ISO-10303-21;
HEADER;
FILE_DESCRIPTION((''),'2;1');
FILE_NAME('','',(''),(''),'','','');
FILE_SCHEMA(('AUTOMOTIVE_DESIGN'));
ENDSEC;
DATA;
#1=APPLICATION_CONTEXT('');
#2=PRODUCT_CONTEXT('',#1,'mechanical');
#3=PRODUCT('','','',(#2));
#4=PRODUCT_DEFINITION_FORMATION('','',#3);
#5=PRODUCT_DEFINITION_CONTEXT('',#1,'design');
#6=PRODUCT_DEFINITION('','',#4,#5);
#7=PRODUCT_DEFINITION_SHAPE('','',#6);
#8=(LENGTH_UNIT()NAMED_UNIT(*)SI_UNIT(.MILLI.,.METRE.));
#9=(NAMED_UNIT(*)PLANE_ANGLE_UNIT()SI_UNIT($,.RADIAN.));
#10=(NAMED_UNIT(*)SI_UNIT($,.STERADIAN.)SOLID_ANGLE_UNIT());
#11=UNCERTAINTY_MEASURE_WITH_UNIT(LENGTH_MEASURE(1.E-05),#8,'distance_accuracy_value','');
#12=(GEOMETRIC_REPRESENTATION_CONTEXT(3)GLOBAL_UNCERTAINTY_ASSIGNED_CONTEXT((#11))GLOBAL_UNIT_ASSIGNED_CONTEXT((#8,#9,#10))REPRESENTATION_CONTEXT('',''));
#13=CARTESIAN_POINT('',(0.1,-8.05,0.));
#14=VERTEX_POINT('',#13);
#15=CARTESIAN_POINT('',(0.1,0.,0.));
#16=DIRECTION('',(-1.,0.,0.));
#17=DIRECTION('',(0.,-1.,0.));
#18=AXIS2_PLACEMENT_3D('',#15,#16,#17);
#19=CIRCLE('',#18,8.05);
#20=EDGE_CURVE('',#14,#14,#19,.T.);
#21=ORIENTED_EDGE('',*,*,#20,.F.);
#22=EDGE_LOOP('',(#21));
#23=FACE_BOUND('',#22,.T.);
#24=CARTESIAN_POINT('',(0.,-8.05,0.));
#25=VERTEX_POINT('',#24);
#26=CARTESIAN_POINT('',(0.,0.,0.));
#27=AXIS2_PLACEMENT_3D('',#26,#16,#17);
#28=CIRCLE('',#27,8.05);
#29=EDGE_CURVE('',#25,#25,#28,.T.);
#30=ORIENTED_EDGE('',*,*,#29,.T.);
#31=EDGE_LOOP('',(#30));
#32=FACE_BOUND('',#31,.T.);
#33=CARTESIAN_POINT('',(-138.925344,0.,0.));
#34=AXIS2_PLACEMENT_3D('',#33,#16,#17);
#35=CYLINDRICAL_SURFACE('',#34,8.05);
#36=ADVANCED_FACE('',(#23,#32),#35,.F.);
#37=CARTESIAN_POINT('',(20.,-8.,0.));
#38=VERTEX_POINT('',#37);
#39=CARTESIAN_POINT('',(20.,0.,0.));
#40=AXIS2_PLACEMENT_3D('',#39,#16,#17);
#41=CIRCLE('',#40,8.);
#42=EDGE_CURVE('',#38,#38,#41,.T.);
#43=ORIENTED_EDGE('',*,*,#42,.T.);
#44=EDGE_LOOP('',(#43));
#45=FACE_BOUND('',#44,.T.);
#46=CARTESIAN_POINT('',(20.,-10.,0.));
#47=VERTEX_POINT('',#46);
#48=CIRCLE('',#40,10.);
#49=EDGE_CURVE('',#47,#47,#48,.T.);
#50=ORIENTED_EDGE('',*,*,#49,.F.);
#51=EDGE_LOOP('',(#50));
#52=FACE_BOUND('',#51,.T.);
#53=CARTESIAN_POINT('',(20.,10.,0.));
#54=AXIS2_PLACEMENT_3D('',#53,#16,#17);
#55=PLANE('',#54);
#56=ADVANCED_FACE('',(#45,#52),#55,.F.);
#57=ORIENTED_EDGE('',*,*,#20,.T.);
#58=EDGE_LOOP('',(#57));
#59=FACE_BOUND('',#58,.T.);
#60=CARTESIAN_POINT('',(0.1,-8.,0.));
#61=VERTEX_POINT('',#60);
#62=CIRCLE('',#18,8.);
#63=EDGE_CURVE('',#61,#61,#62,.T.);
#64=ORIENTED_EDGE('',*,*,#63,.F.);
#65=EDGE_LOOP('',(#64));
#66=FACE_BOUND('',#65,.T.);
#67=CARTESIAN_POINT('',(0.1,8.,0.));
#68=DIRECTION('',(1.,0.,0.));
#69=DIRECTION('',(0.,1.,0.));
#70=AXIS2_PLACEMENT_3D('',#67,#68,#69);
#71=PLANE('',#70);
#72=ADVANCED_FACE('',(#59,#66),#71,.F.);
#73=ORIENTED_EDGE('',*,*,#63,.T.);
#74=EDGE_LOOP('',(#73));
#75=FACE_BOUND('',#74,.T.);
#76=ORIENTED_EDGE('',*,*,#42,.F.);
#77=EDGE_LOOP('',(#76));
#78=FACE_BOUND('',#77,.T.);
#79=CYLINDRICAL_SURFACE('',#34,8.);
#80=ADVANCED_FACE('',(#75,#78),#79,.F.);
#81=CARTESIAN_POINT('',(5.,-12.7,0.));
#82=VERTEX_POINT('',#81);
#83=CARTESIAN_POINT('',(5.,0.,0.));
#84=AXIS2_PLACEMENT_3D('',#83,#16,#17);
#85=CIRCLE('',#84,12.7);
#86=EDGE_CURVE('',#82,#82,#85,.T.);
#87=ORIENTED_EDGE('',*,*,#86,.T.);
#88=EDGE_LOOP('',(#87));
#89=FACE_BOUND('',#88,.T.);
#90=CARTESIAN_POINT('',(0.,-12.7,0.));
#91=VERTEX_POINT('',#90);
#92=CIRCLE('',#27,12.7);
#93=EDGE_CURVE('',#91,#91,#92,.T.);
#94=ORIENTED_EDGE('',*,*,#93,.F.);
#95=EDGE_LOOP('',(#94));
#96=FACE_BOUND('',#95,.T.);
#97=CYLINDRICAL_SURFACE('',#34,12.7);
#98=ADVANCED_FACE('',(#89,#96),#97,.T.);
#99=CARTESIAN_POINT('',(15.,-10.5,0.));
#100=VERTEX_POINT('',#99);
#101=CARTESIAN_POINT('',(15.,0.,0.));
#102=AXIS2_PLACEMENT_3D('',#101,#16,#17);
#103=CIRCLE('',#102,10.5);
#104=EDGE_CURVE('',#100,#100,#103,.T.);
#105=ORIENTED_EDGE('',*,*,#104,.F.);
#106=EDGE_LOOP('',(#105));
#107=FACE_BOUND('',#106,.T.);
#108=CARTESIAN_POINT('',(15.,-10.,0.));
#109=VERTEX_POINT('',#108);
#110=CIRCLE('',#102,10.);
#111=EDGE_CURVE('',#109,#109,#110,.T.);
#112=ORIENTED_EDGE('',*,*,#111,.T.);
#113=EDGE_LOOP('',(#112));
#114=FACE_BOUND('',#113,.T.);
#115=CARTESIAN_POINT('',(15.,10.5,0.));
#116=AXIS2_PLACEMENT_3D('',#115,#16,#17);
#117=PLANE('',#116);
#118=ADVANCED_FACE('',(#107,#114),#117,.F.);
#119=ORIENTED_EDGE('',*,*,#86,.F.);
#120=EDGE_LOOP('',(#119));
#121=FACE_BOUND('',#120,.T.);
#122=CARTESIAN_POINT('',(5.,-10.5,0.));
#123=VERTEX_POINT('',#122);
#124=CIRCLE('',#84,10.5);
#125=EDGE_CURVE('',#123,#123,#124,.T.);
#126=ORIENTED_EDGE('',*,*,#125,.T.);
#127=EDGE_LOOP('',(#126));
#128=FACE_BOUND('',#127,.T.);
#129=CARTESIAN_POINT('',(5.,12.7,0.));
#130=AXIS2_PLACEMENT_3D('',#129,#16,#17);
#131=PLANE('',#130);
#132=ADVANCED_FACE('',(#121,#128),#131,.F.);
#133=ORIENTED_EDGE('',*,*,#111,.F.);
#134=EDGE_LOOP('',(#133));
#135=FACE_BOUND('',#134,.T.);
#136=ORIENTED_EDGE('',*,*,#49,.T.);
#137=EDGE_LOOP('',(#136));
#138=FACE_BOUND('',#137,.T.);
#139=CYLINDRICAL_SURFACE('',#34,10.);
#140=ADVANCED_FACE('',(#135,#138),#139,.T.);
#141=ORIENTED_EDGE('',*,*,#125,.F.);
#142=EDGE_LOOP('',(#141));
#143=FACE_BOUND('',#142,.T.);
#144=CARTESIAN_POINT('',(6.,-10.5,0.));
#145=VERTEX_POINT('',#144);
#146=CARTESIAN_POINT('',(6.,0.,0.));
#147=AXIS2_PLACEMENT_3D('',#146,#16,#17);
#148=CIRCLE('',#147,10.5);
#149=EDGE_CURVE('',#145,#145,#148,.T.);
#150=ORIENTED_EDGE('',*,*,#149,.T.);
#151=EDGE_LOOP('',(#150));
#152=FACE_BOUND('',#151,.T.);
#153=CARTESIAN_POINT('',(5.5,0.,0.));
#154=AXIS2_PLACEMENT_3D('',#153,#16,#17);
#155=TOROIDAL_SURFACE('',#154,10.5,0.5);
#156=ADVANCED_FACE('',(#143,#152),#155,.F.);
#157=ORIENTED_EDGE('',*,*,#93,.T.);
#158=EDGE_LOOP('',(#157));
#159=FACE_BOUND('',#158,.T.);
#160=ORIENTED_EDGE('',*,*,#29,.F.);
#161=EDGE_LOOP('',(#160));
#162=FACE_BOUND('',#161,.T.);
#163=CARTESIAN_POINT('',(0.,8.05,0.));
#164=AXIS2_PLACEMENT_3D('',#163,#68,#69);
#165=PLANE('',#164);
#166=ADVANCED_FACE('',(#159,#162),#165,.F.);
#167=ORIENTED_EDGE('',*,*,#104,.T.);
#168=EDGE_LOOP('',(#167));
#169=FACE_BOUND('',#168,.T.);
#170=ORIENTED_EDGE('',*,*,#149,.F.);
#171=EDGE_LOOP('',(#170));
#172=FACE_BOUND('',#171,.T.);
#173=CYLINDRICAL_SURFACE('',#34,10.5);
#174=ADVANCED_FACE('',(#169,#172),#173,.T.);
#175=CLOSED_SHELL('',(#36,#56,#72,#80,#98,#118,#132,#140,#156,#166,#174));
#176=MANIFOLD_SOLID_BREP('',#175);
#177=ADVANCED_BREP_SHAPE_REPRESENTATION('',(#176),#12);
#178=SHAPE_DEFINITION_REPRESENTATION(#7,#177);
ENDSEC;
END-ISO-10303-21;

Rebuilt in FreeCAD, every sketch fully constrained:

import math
import FreeCAD as App
import Part
import Sketcher

V = App.Vector

doc = App.newDocument("Part")
body = doc.addObject("PartDesign::Body", "Body")

sketch1 = body.newObject("Sketcher::SketchObject", "Sketch")
sketch1.AttachmentSupport = (doc.getObject("XY_Plane"), [""])
sketch1.MapMode = "FlatFace"
sketch1.addGeometry([
    Part.LineSegment(V(0, 12.7, 0), V(0, 8.05, 0)),
    Part.LineSegment(V(0, 8.05, 0), V(0.1, 8.05, 0)),
    Part.LineSegment(V(0.1, 8.05, 0), V(0.1, 8, 0)),
    Part.LineSegment(V(0.1, 8, 0), V(20, 8, 0)),
    Part.LineSegment(V(20, 8, 0), V(20, 10, 0)),
    Part.LineSegment(V(20, 10, 0), V(15, 10, 0)),
    Part.LineSegment(V(15, 10, 0), V(15, 10.5, 0)),
    Part.LineSegment(V(15, 10.5, 0), V(6, 10.5, 0)),
    Part.ArcOfCircle(Part.Circle(V(5.5, 10.5, 0), V(0, 0, 1), 0.5), math.radians(180), math.radians(360)),
    Part.LineSegment(V(5, 10.5, 0), V(5, 12.7, 0)),
    Part.LineSegment(V(5, 12.7, 0), V(0, 12.7, 0)),
], False)
sketch1.addConstraint([
    Sketcher.Constraint("Coincident", 0, 2, 1, 1),
    Sketcher.Constraint("Coincident", 1, 2, 2, 1),
    Sketcher.Constraint("Coincident", 2, 2, 3, 1),
    Sketcher.Constraint("Coincident", 3, 2, 4, 1),
    Sketcher.Constraint("Coincident", 4, 2, 5, 1),
    Sketcher.Constraint("Coincident", 5, 2, 6, 1),
    Sketcher.Constraint("Coincident", 6, 2, 7, 1),
    Sketcher.Constraint("Coincident", 7, 2, 8, 2),
    Sketcher.Constraint("Tangent", 8, 1, 9, 1),
    Sketcher.Constraint("Coincident", 9, 2, 10, 1),
    Sketcher.Constraint("Coincident", 10, 2, 0, 1),
    Sketcher.Constraint("Vertical", 0),
    Sketcher.Constraint("Horizontal", 1),
    Sketcher.Constraint("Vertical", 2),
    Sketcher.Constraint("Horizontal", 3),
    Sketcher.Constraint("Vertical", 4),
    Sketcher.Constraint("Horizontal", 5),
    Sketcher.Constraint("Vertical", 6),
    Sketcher.Constraint("Horizontal", 7),
    Sketcher.Constraint("Vertical", 9),
    Sketcher.Constraint("Horizontal", 10),
    Sketcher.Constraint("PointOnObject", 0, 2, -2),
    Sketcher.Constraint("Horizontal", 8, 3, 6, 2),
    Sketcher.Constraint("Equal", 5, 10),
    Sketcher.Constraint("Radius", 8, 0.5),
    Sketcher.Constraint("DistanceX", 5, 2, 5, 1, 5.0),
    Sketcher.Constraint("DistanceX", 7, 2, 7, 1, 9.0),
    Sketcher.Constraint("DistanceY", 4, 1, 4, 2, 2.0),
    Sketcher.Constraint("DistanceX", 1, 1, 1, 2, 0.1),
    Sketcher.Constraint("DistanceY", 6, 1, 6, 2, 0.5),
    Sketcher.Constraint("DistanceY", 9, 1, 9, 2, 2.2),
    Sketcher.Constraint("DistanceY", -1, 1, 2, 2, 8.0),
    Sketcher.Constraint("DistanceY", 0, 2, 0, 1, 4.65),
])
revolution = body.newObject("PartDesign::Revolution", "Revolution")
revolution.Profile = sketch1
revolution.ReferenceAxis = (sketch1, ["H_Axis"])
revolution.Angle = 360

doc.recompute()
